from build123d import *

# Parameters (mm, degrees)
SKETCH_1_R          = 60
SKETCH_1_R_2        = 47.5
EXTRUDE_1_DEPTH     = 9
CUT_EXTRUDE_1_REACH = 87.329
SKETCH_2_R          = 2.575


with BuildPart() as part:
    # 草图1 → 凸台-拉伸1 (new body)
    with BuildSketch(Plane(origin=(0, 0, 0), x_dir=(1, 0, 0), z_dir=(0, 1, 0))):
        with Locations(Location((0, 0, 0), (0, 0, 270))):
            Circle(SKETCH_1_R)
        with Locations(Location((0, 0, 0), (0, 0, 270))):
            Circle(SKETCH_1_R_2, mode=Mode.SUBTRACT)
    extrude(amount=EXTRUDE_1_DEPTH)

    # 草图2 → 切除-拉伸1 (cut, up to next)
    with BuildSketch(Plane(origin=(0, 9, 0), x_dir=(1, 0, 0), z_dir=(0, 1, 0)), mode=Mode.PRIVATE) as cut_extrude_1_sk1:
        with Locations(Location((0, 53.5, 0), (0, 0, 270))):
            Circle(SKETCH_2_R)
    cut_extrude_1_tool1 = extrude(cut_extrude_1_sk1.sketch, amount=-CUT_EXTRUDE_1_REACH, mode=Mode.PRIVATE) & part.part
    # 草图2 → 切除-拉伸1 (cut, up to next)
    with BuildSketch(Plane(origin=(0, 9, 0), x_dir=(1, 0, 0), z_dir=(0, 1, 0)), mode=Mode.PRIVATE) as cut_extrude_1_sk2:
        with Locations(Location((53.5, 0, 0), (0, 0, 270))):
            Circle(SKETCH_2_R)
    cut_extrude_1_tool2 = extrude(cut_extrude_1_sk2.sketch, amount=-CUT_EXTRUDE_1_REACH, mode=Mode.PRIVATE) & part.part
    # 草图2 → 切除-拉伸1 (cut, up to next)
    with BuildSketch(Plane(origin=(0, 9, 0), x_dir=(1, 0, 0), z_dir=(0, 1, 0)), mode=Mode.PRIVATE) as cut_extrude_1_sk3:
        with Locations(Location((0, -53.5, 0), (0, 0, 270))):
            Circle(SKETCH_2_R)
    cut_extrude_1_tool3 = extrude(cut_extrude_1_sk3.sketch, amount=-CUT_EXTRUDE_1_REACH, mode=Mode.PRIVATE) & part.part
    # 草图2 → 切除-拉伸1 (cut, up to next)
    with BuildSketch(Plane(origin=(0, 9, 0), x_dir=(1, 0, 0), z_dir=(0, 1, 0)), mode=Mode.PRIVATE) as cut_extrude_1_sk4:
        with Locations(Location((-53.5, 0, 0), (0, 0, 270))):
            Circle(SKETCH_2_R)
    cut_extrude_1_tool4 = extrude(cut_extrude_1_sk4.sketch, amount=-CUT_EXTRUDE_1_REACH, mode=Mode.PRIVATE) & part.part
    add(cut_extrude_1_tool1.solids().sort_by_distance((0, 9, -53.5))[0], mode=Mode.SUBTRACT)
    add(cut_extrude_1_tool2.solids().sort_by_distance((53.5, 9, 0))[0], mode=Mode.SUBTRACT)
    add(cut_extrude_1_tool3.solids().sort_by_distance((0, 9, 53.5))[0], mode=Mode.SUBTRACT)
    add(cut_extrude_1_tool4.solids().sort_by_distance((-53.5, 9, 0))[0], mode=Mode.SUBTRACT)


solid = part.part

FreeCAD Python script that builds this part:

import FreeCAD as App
import Part
import Sketcher

V = App.Vector
Q = App.Units.Quantity

doc = App.newDocument("Part")
body = doc.addObject("PartDesign::Body", "Body")

# Sketch on XZ plane
sketch1 = body.newObject("Sketcher::SketchObject", "Sketch")
sketch1.AttachmentSupport = (doc.getObject("XZ_Plane"), [""])
sketch1.MapMode = "FlatFace"
sketch1.addGeometry(Part.Circle(V(0, 0, 0), V(0, 0, 1), 60), False)
sketch1.addGeometry(Part.Circle(V(0, 0, 0), V(0, 0, 1), 47.5), False)
sketch1.addConstraint(Sketcher.Constraint("Coincident", 0, 3, -1, 1))
sketch1.addConstraint(Sketcher.Constraint("Coincident", 1, 3, -1, 1))
sketch1.addConstraint(Sketcher.Constraint("Diameter", 0, Q("120 mm")))
sketch1.addConstraint(Sketcher.Constraint("Diameter", 1, Q("95 mm")))
pad1 = body.newObject("PartDesign::Pad", "Pad")
pad1.Profile = sketch1
pad1.Length = 9
pad1.Reversed = True

# Sketch on XZ plane
sketch2 = body.newObject("Sketcher::SketchObject", "Sketch001")
sketch2.AttachmentSupport = (doc.getObject("XZ_Plane"), [""])
sketch2.MapMode = "FlatFace"
sketch2.AttachmentOffset = App.Placement(V(0, 0, -9), App.Rotation())
sketch2.addGeometry(Part.Circle(V(0, -53.5, 0), V(0, 0, 1), 2.575), False)
sketch2.addConstraint(Sketcher.Constraint("PointOnObject", 0, 3, -2))
sketch2.addConstraint(Sketcher.Constraint("Diameter", 0, Q("5.15 mm")))
sketch2.addConstraint(Sketcher.Constraint("DistanceY", 0, 3, -1, 1, Q("53.5 mm")))
pocket1 = body.newObject("PartDesign::Pocket", "Pocket")
pocket1.Profile = sketch2
pocket1.Type = "UpToFirst"
pocket1.Reversed = True

# Sketch on XZ plane
sketch3 = body.newObject("Sketcher::SketchObject", "Sketch002")
sketch3.AttachmentSupport = (doc.getObject("XZ_Plane"), [""])
sketch3.MapMode = "FlatFace"
sketch3.AttachmentOffset = App.Placement(V(0, 0, -9), App.Rotation())
sketch3.addGeometry(Part.Circle(V(53.5, 0, 0), V(0, 0, 1), 2.575), False)
sketch3.addConstraint(Sketcher.Constraint("PointOnObject", 0, 3, -1))
sketch3.addConstraint(Sketcher.Constraint("Diameter", 0, Q("5.15 mm")))
sketch3.addConstraint(Sketcher.Constraint("DistanceX", -1, 1, 0, 3, Q("53.5 mm")))
pocket2 = body.newObject("PartDesign::Pocket", "Pocket001")
pocket2.Profile = sketch3
pocket2.Type = "UpToFirst"
pocket2.Reversed = True

# Sketch on XZ plane
sketch4 = body.newObject("Sketcher::SketchObject", "Sketch003")
sketch4.AttachmentSupport = (doc.getObject("XZ_Plane"), [""])
sketch4.MapMode = "FlatFace"
sketch4.AttachmentOffset = App.Placement(V(0, 0, -9), App.Rotation())
sketch4.addGeometry(Part.Circle(V(0, 53.5, 0), V(0, 0, 1), 2.575), False)
sketch4.addConstraint(Sketcher.Constraint("PointOnObject", 0, 3, -2))
sketch4.addConstraint(Sketcher.Constraint("Diameter", 0, Q("5.15 mm")))
sketch4.addConstraint(Sketcher.Constraint("DistanceY", -1, 1, 0, 3, Q("53.5 mm")))
pocket3 = body.newObject("PartDesign::Pocket", "Pocket002")
pocket3.Profile = sketch4
pocket3.Type = "UpToFirst"
pocket3.Reversed = True

# Sketch on XZ plane
sketch5 = body.newObject("Sketcher::SketchObject", "Sketch004")
sketch5.AttachmentSupport = (doc.getObject("XZ_Plane"), [""])
sketch5.MapMode = "FlatFace"
sketch5.AttachmentOffset = App.Placement(V(0, 0, -9), App.Rotation())
sketch5.addGeometry(Part.Circle(V(-53.5, 0, 0), V(0, 0, 1), 2.575), False)
sketch5.addConstraint(Sketcher.Constraint("PointOnObject", 0, 3, -1))
sketch5.addConstraint(Sketcher.Constraint("Diameter", 0, Q("5.15 mm")))
sketch5.addConstraint(Sketcher.Constraint("DistanceX", 0, 3, -1, 1, Q("53.5 mm")))
pocket4 = body.newObject("PartDesign::Pocket", "Pocket003")
pocket4.Profile = sketch5
pocket4.Type = "UpToFirst"
pocket4.Reversed = True

doc.recompute()
